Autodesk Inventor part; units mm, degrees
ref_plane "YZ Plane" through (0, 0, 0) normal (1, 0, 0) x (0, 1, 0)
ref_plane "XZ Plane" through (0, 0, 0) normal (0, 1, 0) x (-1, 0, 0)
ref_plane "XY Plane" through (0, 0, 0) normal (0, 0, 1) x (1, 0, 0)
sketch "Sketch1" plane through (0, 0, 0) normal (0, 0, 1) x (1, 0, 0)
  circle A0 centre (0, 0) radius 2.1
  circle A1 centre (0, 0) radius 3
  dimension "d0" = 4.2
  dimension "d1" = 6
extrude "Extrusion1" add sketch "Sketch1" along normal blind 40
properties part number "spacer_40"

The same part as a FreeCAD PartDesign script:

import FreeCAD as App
import Part
import Sketcher
Q = App.Units.Quantity

doc = App.newDocument("Part")
params = doc.addObject("Spreadsheet::Sheet", "Params")
for row, (alias, value) in enumerate([
    ("sketch1_diameter", "6 mm"),
    ("sketch1_diameter2", "4.2 mm"),
    ("pad1_length", "40 mm"),
], start=1):
    params.set(f"A{row}", alias)
    params.set(f"B{row}", "=" + value)
    params.setAlias(f"B{row}", alias)

body = doc.addObject("PartDesign::Body", "Body")

# Sketch on XY plane
sketch1 = body.newObject("Sketcher::SketchObject", "Sketch")
sketch1.AttachmentSupport = (doc.getObject("XY_Plane"), [""])
sketch1.MapMode = "FlatFace"
sketch1.addGeometry(Part.Circle(App.Vector(0, 0, 0), App.Vector(0, 0, 1), 3), False)
sketch1.addGeometry(Part.Circle(App.Vector(0, 0, 0), App.Vector(0, 0, 1), 2.1), False)
sketch1.addConstraint(Sketcher.Constraint("Coincident", 0, 3, -1, 1))
sketch1.addConstraint(Sketcher.Constraint("Coincident", 1, 3, -1, 1))
sketch1.addConstraint(Sketcher.Constraint("Diameter", 0, Q("6 mm")))
sketch1.addConstraint(Sketcher.Constraint("Diameter", 1, Q("4.2 mm")))
sketch1.setExpression("Constraints[2]", "Params.sketch1_diameter")
sketch1.setExpression("Constraints[3]", "Params.sketch1_diameter2")
pad1 = body.newObject("PartDesign::Pad", "Pad")
pad1.Profile = sketch1
pad1.setExpression("Length", "Params.pad1_length")

doc.recompute()
